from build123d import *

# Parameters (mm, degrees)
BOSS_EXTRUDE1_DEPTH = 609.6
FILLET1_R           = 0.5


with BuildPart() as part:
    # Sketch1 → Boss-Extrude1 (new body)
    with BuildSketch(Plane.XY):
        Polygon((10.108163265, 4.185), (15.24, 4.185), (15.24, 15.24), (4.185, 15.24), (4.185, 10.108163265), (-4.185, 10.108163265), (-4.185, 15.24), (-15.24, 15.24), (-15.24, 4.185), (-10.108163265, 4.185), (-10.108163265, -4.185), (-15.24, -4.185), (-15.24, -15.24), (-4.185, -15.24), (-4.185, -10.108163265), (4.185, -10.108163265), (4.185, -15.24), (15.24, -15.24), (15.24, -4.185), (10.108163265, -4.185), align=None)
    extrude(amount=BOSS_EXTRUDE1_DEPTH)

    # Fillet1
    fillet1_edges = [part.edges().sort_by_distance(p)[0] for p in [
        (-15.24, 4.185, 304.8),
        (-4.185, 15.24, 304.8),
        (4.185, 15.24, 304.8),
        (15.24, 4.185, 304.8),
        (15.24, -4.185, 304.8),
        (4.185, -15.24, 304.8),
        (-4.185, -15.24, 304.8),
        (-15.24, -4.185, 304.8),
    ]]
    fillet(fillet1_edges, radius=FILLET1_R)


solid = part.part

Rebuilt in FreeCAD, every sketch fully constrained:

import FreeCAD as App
import Part
import Sketcher
from FreeCAD import Vector
Q = App.Units.Quantity


def edges_at(feature, points):
    """Names of the edges that pass closest to the given points."""
    edges = feature.Shape.Edges
    near = lambda p: min(range(len(edges)), key=lambda i: edges[i].distToShape(Part.Vertex(*p))[0])
    return sorted({f"Edge{near(p) + 1}" for p in points})


def add_polygon(sketch, points):
    """Adds a closed chain of lines whose ends are joined by coincident constraints."""
    first, n = sketch.GeometryCount, len(points)
    for a, b in zip(points, points[1:] + points[:1]):
        sketch.addGeometry(Part.LineSegment(App.Vector(*a, 0), App.Vector(*b, 0)), False)
    for i in range(n):
        sketch.addConstraint(Sketcher.Constraint("Coincident", first + i, 2, first + (i + 1) % n, 1))

doc = App.newDocument("Part")
body = doc.addObject("PartDesign::Body", "Body")

# Sketch on XY plane
sketch1 = doc.addObject("Sketcher::SketchObject", "Sketch")
body.addObject(sketch1)
sketch1.AttachmentSupport = (doc.XY_Plane, [""])
sketch1.MapMode = "FlatFace"
add_polygon(sketch1, [(10, 4), (15, 4), (15, 15), (4, 15), (4, 10), (-4, 10), (-4, 15), (-15, 15), (-15, 4), (-10, 4), (-10, -4), (-15, -4), (-15, -15), (-4, -15), (-4, -10), (4, -10), (4, -15), (15, -15), (15, -4), (10, -4)])  # lines 0-19
sketch1.addConstraint(Sketcher.Constraint("Horizontal", 0))
sketch1.addConstraint(Sketcher.Constraint("Vertical", 1))
sketch1.addConstraint(Sketcher.Constraint("Horizontal", 2))
sketch1.addConstraint(Sketcher.Constraint("Vertical", 3))
sketch1.addConstraint(Sketcher.Constraint("Horizontal", 4))
sketch1.addConstraint(Sketcher.Constraint("Vertical", 5))
sketch1.addConstraint(Sketcher.Constraint("Horizontal", 6))
sketch1.addConstraint(Sketcher.Constraint("Vertical", 7))
sketch1.addConstraint(Sketcher.Constraint("Horizontal", 8))
sketch1.addConstraint(Sketcher.Constraint("Vertical", 9))
sketch1.addConstraint(Sketcher.Constraint("Horizontal", 10))
sketch1.addConstraint(Sketcher.Constraint("Vertical", 11))
sketch1.addConstraint(Sketcher.Constraint("Horizontal", 12))
sketch1.addConstraint(Sketcher.Constraint("Vertical", 13))
sketch1.addConstraint(Sketcher.Constraint("Horizontal", 14))
sketch1.addConstraint(Sketcher.Constraint("Vertical", 15))
sketch1.addConstraint(Sketcher.Constraint("Horizontal", 16))
sketch1.addConstraint(Sketcher.Constraint("Vertical", 17))
sketch1.addConstraint(Sketcher.Constraint("Horizontal", 18))
sketch1.addConstraint(Sketcher.Constraint("Vertical", 19))
sketch1.addConstraint(Sketcher.Constraint("Symmetric", 0, 2, 10, 2, -1, 1))
sketch1.addConstraint(Sketcher.Constraint("Symmetric", 2, 2, 12, 2, -1, 1))
sketch1.addConstraint(Sketcher.Constraint("Symmetric", 4, 2, 14, 2, -1, 1))
sketch1.addConstraint(Sketcher.Constraint("Symmetric", 6, 2, 16, 2, -1, 1))
sketch1.addConstraint(Sketcher.Constraint("Symmetric", 8, 2, 18, 2, -1, 1))
sketch1.addConstraint(Sketcher.Constraint("Symmetric", 2, 2, 5, 2, -2))
sketch1.addConstraint(Sketcher.Constraint("Symmetric", 0, 2, 7, 2, -2))
sketch1.addConstraint(Sketcher.Constraint("Equal", 16, 1))
sketch1.addConstraint(Sketcher.Constraint("Equal", 18, 3))
sketch1.addConstraint(Sketcher.Constraint("Equal", 14, 9))
sketch1.addConstraint(Sketcher.Constraint("DistanceX", 4, 2, 4, 1, Q("8.37 mm")))
sketch1.addConstraint(Sketcher.Constraint("DistanceX", 2, 2, 2, 1, Q("11.055 mm")))
sketch1.addConstraint(Sketcher.Constraint("DistanceX", 0, 1, 0, 2, Q("5.131837 mm")))
pad1 = doc.addObject("PartDesign::Pad", "Pad")
body.addObject(pad1)
pad1.Profile = sketch1
pad1.Length = 609.6
doc.recompute()

fillet = doc.addObject("PartDesign::Fillet", "Fillet")
body.addObject(fillet)
fillet.Base = (pad1, edges_at(pad1, [
    (-15.24, 4.185, 304.8),
    (-4.185, 15.24, 304.8),
    (4.185, 15.24, 304.8),
    (15.24, 4.185, 304.8),
    (15.24, -4.185, 304.8),
    (4.185, -15.24, 304.8),
    (-4.185, -15.24, 304.8),
    (-15.24, -4.185, 304.8),
]))
fillet.Radius = 0.5

doc.recompute()
